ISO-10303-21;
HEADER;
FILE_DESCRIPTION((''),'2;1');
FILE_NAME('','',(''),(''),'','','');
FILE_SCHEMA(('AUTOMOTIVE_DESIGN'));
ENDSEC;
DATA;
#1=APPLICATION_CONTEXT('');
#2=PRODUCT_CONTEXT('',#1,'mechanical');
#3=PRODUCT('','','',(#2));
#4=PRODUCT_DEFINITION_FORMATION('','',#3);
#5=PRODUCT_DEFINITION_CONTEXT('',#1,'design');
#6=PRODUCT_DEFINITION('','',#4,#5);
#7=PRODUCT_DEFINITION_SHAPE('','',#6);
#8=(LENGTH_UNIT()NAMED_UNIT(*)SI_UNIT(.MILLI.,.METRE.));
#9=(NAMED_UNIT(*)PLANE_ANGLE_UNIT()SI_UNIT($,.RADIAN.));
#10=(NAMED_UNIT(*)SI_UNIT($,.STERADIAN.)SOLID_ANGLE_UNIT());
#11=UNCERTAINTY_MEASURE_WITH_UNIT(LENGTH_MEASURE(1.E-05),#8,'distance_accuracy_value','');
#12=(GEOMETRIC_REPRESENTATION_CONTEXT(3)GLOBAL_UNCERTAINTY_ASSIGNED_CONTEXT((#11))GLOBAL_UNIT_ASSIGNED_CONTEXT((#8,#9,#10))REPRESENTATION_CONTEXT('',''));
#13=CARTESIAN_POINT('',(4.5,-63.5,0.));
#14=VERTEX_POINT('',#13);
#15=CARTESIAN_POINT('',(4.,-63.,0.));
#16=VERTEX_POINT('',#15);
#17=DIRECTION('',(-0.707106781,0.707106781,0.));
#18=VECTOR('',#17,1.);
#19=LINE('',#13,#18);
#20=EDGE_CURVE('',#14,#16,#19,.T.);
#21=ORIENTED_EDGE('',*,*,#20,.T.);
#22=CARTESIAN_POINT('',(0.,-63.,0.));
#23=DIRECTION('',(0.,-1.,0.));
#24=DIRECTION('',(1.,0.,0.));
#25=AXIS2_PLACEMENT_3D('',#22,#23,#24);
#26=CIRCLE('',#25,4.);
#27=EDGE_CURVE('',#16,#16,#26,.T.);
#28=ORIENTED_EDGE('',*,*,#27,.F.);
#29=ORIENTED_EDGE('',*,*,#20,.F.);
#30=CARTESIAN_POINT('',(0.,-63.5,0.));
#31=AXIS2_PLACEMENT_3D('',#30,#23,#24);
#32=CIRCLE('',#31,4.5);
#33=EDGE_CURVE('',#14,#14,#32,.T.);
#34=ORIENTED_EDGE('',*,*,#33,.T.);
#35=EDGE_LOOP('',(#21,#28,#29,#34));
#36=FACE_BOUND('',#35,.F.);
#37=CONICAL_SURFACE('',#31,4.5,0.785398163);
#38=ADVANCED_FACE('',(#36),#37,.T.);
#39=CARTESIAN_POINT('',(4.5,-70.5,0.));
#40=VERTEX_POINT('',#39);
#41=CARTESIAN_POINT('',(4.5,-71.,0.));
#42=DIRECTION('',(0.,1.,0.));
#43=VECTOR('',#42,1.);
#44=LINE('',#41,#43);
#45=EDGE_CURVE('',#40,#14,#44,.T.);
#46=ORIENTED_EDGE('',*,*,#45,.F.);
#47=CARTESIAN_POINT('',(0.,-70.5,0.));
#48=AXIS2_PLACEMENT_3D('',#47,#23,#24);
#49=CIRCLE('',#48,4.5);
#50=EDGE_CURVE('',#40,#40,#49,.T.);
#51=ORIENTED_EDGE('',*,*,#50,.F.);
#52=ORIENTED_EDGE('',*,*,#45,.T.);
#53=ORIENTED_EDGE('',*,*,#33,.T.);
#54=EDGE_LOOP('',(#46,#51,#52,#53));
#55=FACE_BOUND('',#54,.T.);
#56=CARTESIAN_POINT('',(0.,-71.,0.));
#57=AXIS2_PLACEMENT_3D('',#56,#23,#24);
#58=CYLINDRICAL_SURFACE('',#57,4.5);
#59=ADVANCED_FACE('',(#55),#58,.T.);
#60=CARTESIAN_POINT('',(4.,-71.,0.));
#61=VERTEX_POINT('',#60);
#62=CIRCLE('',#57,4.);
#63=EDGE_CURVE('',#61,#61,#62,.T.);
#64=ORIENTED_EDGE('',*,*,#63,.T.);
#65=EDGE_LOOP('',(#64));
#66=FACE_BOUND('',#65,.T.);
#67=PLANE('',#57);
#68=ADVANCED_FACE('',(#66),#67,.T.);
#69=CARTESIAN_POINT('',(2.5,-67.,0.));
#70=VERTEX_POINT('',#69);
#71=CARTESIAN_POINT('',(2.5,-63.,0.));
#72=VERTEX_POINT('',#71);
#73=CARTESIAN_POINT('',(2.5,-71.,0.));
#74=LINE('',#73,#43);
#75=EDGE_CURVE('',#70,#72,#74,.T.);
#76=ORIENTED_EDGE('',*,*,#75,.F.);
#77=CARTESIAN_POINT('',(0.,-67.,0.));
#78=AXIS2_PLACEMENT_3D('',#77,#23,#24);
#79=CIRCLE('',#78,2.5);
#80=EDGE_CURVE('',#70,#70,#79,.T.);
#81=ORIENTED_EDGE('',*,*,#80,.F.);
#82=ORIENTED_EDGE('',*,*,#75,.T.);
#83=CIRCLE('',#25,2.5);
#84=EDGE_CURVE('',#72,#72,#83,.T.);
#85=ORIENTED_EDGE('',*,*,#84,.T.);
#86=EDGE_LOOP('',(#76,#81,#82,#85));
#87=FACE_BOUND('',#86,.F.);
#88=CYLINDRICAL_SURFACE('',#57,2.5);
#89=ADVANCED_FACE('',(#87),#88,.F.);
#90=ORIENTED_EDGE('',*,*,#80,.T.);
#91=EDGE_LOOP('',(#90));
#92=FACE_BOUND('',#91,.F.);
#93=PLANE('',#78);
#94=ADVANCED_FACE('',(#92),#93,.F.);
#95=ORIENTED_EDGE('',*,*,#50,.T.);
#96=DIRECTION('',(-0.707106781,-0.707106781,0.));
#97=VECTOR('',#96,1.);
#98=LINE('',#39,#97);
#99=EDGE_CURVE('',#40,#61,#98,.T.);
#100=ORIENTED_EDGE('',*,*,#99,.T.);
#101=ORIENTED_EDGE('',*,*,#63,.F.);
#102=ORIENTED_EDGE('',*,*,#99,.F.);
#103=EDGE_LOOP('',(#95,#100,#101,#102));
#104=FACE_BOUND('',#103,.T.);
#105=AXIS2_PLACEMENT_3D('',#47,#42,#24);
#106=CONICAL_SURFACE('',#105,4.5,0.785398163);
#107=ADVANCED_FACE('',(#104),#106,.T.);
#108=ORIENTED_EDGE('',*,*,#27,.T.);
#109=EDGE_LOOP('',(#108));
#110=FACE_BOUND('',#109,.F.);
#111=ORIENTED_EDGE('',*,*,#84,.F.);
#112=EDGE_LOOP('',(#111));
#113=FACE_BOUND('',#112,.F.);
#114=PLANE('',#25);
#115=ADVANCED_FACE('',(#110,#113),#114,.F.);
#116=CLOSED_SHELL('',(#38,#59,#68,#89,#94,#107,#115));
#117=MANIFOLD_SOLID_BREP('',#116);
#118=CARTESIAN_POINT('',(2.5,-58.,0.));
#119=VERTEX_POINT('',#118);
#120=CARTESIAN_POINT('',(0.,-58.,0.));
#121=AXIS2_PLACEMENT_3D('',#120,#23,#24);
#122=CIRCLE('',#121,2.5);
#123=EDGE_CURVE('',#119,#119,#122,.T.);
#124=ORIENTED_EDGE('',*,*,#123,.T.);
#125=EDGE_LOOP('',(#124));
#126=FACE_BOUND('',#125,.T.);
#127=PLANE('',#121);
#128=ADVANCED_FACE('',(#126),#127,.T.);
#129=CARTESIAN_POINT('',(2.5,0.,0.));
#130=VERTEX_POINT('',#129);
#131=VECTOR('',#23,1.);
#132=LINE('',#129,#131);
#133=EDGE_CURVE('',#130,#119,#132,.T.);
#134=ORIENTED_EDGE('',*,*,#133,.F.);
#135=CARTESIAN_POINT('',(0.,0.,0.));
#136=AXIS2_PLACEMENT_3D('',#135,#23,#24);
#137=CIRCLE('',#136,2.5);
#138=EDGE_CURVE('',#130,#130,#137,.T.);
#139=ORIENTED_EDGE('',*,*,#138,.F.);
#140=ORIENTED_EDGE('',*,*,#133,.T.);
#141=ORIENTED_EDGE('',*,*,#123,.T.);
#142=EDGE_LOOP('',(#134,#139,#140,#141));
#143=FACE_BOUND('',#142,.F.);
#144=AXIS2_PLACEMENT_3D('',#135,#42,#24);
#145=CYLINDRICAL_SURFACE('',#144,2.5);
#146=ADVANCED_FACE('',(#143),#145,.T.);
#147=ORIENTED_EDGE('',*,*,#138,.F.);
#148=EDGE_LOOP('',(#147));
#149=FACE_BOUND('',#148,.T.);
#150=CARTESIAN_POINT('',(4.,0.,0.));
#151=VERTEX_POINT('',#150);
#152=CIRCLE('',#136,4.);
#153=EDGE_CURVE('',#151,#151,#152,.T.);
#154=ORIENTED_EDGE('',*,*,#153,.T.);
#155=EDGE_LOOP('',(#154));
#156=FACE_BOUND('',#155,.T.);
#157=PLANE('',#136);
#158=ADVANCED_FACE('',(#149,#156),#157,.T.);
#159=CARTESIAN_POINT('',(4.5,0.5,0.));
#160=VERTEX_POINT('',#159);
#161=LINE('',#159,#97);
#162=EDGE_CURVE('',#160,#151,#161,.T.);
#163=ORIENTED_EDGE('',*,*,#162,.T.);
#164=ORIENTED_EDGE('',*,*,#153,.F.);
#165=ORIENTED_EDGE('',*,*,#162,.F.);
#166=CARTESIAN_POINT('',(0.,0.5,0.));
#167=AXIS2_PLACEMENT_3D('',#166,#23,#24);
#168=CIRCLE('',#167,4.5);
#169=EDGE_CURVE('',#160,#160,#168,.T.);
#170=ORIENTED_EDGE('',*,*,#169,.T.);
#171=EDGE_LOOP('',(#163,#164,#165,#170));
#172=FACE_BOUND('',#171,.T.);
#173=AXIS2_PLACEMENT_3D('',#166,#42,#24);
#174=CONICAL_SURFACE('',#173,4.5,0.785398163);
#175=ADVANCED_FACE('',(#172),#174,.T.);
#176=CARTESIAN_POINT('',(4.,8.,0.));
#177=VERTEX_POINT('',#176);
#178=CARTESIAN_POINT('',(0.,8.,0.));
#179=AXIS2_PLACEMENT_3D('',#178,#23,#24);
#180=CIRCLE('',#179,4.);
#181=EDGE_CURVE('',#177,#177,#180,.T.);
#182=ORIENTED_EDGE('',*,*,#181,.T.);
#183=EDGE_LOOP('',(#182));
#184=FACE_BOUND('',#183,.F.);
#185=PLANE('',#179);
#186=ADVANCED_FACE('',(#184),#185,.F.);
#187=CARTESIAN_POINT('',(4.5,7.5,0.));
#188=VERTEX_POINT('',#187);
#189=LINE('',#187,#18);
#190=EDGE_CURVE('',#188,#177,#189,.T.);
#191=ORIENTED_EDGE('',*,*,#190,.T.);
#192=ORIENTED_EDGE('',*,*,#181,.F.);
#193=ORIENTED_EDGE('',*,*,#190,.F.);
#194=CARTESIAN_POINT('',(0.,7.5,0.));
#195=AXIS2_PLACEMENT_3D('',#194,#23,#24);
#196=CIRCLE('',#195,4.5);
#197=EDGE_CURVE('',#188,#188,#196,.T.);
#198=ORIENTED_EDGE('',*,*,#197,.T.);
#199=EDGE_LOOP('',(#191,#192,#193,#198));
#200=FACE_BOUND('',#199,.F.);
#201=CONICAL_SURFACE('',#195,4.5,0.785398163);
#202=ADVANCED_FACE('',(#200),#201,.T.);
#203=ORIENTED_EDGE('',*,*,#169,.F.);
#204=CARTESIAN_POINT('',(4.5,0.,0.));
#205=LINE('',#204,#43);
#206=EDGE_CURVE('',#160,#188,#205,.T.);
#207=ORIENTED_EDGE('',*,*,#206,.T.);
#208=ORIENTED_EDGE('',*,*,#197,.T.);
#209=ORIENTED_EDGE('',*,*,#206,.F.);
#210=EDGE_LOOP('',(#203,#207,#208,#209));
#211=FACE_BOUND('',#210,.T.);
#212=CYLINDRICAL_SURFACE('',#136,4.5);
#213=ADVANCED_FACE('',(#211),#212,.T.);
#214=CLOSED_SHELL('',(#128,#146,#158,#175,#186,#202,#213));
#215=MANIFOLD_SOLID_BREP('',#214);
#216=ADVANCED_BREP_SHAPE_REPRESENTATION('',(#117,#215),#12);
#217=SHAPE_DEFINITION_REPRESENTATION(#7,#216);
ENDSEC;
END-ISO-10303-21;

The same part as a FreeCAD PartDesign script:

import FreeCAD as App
import Part
import Sketcher


def edges_at(feature, points):
    """Names of the edges that pass closest to the given points."""
    edges = feature.Shape.Edges
    near = lambda p: min(range(len(edges)), key=lambda i: edges[i].distToShape(Part.Vertex(*p))[0])
    return sorted({f"Edge{near(p) + 1}" for p in points})

doc = App.newDocument("Part")
body = doc.addObject("PartDesign::Body", "Body")

# Sketch on XZ plane
sketch1 = body.newObject("Sketcher::SketchObject", "Sketch")
sketch1.AttachmentSupport = (doc.getObject("XZ_Plane"), [""])
sketch1.MapMode = "FlatFace"
sketch1.addGeometry(Part.Circle(App.Vector(0, 0, 0), App.Vector(0, 0, 1), 2.5), False)
sketch1.addConstraint([
    Sketcher.Constraint("Coincident", 0, 3, -1, 1),
    Sketcher.Constraint("Diameter", 0, 5.0),
])
pad1 = body.newObject("PartDesign::Pad", "Pad")
pad1.Profile = sketch1
pad1.Length = 58

# Sketch on XZ plane
sketch2 = body.newObject("Sketcher::SketchObject", "Sketch001")
sketch2.AttachmentSupport = (doc.getObject("XZ_Plane"), [""])
sketch2.MapMode = "FlatFace"
sketch2.addGeometry(Part.Circle(App.Vector(0, 0, 0), App.Vector(0, 0, 1), 4.5), False)
sketch2.addConstraint([
    Sketcher.Constraint("Coincident", 0, 3, -1, 1),
    Sketcher.Constraint("Diameter", 0, 9.0),
])
pad2 = body.newObject("PartDesign::Pad", "Pad001")
pad2.Profile = sketch2
pad2.Length = 8
pad2.Reversed = True
doc.recompute()

chamfer = body.newObject("PartDesign::Chamfer", "Chamfer")
chamfer.Base = (pad2, edges_at(pad2, [(-4.5, 8, 0), (-4.5, 0, 0)]))
chamfer.Size = 0.5
body2 = doc.addObject("PartDesign::Body", "Body001")

# Sketch on XZ plane
sketch3 = body2.newObject("Sketcher::SketchObject", "Sketch002")
sketch3.AttachmentSupport = (doc.getObject("XZ_Plane001"), [""])
sketch3.MapMode = "FlatFace"
sketch3.AttachmentOffset = App.Placement(App.Vector(0, 0, 71), App.Rotation())
sketch3.addGeometry([
    Part.Circle(App.Vector(0, 0, 0), App.Vector(0, 0, 1), 4.5),
    Part.Circle(App.Vector(0, 0, 0), App.Vector(0, 0, 1), 2.5),
], False)
sketch3.addConstraint([
    Sketcher.Constraint("Coincident", 0, 3, -1, 1),
    Sketcher.Constraint("Coincident", 1, 3, -1, 1),
    Sketcher.Constraint("Diameter", 0, 9.0),
    Sketcher.Constraint("Diameter", 1, 5.0),
])
pad3 = body2.newObject("PartDesign::Pad", "Pad002")
pad3.Profile = sketch3
pad3.Length = 8
pad3.Reversed = True
doc.recompute()

chamfer2 = body2.newObject("PartDesign::Chamfer", "Chamfer001")
chamfer2.Base = (pad3, edges_at(pad3, [(-4.5, -63, 0), (-4.5, -71, 0)]))
chamfer2.Size = 0.5

# Sketch on XZ plane
sketch4 = body2.newObject("Sketcher::SketchObject", "Sketch003")
sketch4.AttachmentSupport = (doc.getObject("XZ_Plane001"), [""])
sketch4.MapMode = "FlatFace"
sketch4.AttachmentOffset = App.Placement(App.Vector(0, 0, 71), App.Rotation())
sketch4.addGeometry(Part.Circle(App.Vector(0, 0, 0), App.Vector(0, 0, 1), 2.5), False)
sketch4.addConstraint([
    Sketcher.Constraint("Coincident", 0, 3, -1, 1),
    Sketcher.Constraint("Diameter", 0, 5.0),
])
pad4 = body2.newObject("PartDesign::Pad", "Pad003")
pad4.Profile = sketch4
pad4.Length = 4
pad4.Reversed = True

doc.recompute()
